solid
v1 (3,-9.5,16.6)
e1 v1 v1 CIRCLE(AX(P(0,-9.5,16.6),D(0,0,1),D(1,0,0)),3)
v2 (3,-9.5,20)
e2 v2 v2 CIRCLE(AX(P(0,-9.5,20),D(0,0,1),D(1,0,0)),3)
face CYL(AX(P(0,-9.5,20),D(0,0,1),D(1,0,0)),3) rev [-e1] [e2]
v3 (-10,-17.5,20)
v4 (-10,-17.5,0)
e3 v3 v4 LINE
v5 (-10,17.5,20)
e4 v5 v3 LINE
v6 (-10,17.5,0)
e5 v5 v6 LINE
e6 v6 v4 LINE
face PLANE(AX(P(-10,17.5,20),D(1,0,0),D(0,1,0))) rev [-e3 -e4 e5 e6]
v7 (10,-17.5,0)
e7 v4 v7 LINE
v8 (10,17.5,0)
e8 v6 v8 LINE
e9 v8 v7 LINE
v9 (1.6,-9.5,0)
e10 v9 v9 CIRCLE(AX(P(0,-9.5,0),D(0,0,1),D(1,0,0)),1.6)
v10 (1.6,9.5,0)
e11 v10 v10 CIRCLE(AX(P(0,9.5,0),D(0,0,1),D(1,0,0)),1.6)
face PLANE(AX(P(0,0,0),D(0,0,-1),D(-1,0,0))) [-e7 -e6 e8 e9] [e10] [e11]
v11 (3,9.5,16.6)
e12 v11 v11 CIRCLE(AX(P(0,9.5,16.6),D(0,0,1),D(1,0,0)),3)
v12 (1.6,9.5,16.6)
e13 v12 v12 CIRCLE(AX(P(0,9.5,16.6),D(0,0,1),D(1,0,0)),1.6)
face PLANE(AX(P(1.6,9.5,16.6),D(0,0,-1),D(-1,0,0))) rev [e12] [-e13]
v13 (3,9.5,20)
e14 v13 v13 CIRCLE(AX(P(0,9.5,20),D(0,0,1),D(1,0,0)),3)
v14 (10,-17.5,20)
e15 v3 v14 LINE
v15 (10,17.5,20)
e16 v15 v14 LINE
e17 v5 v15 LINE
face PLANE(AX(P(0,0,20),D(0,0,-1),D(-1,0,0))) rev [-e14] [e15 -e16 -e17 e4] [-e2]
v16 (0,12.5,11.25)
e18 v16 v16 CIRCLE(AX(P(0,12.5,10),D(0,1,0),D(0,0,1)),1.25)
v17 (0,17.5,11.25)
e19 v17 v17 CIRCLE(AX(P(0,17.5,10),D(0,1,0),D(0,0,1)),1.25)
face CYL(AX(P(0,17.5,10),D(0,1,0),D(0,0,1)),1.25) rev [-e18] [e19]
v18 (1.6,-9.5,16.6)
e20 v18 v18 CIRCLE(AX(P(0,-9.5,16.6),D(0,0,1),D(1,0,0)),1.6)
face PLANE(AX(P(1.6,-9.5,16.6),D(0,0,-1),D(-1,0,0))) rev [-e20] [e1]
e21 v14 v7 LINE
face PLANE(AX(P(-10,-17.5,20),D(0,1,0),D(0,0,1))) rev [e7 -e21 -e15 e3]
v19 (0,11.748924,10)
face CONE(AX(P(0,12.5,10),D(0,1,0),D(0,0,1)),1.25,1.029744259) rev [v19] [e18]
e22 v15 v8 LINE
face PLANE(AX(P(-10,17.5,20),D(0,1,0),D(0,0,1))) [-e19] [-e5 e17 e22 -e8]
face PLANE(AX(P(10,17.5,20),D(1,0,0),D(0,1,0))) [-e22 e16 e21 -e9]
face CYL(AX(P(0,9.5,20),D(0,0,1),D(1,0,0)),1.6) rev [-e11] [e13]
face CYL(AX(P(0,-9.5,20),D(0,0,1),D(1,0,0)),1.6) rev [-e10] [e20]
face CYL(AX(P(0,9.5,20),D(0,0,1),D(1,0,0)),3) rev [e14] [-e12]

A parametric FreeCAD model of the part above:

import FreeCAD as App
import Part
import Sketcher

V = App.Vector
Q = App.Units.Quantity


def add_polygon(sketch, points):
    """Adds a closed chain of lines whose ends are joined by coincident constraints."""
    first, n = sketch.GeometryCount, len(points)
    for a, b in zip(points, points[1:] + points[:1]):
        sketch.addGeometry(Part.LineSegment(App.Vector(*a, 0), App.Vector(*b, 0)), False)
    for i in range(n):
        sketch.addConstraint(Sketcher.Constraint("Coincident", first + i, 2, first + (i + 1) % n, 1))

doc = App.newDocument("Part")
params = doc.addObject("Spreadsheet::Sheet", "Params")
for row, (alias, value) in enumerate([
    ("sketch1_width", "20 mm"),
    ("sketch1_height", "35 mm"),
    ("pad1_length", "20 mm"),
    ("sketch2_diameter", "3.2 mm"),
    ("hole_diameter", "3.2 mm"),
    ("hole_cbore_diameter", "6 mm"),
    ("hole_cbore_depth", "3.4 mm"),
    ("sketch3_diameter", "2.5 mm"),
    ("hole2_diameter", "2.5 mm"),
    ("hole2_depth", "5 mm"),
], start=1):
    params.set(f"A{row}", alias)
    params.set(f"B{row}", "=" + value)
    params.setAlias(f"B{row}", alias)

body = doc.addObject("PartDesign::Body", "Body")

sketch1 = body.newObject("Sketcher::SketchObject", "Sketch")
sketch1.AttachmentSupport = (doc.getObject("XY_Plane"), [""])
sketch1.MapMode = "FlatFace"
add_polygon(sketch1, [(-10, 17.5), (-10, -17.5), (10, -17.5), (10, 17.5)])
sketch1.addConstraint(Sketcher.Constraint("Vertical", 0))
sketch1.addConstraint(Sketcher.Constraint("Horizontal", 1))
sketch1.addConstraint(Sketcher.Constraint("Vertical", 2))
sketch1.addConstraint(Sketcher.Constraint("Horizontal", 3))
sketch1.addConstraint(Sketcher.Constraint("Symmetric", 0, 2, 2, 2, -1, 1))
sketch1.addConstraint(Sketcher.Constraint("DistanceX", 1, 1, 1, 2, Q("20 mm")))
sketch1.addConstraint(Sketcher.Constraint("DistanceY", 0, 2, 0, 1, Q("35 mm")))
sketch1.setExpression("Constraints[9]", "Params.sketch1_width")
sketch1.setExpression("Constraints[10]", "Params.sketch1_height")
pad1 = body.newObject("PartDesign::Pad", "Pad")
pad1.Profile = sketch1
pad1.setExpression("Length", "Params.pad1_length")

sketch2 = body.newObject("Sketcher::SketchObject", "Sketch001")
sketch2.AttachmentSupport = (doc.getObject("XY_Plane"), [""])
sketch2.MapMode = "FlatFace"
sketch2.AttachmentOffset = App.Placement(V(0, 0, 20), App.Rotation())
sketch2.addGeometry(Part.Circle(V(0, 9.5, 0), V(0, 0, 1), 1.6), False)
sketch2.addGeometry(Part.Circle(V(0, -9.5, 0), V(0, 0, 1), 1.6), False)
sketch2.addConstraint(Sketcher.Constraint("Equal", 0, 1))
sketch2.addConstraint(Sketcher.Constraint("Symmetric", 0, 3, 1, 3, -1, 1))
sketch2.addConstraint(Sketcher.Constraint("PointOnObject", 0, 3, -2))
sketch2.addConstraint(Sketcher.Constraint("Diameter", 0, Q("3.2 mm")))
sketch2.addConstraint(Sketcher.Constraint("DistanceY", 1, 3, 0, 3, Q("19 mm")))
sketch2.setExpression("Constraints[3]", "Params.sketch2_diameter")
doc.recompute()
hole = body.newObject("PartDesign::Hole", "Hole")
hole.Profile = sketch2
hole.ThreadType = "None"
hole.setExpression("Diameter", "Params.hole_diameter")
hole.DepthType = "ThroughAll"
hole.HoleCutType = "Counterbore"
hole.setExpression("HoleCutDiameter", "Params.hole_cbore_diameter")
hole.setExpression("HoleCutDepth", "Params.hole_cbore_depth")

sketch3 = body.newObject("Sketcher::SketchObject", "Sketch002")
sketch3.AttachmentSupport = (doc.getObject("XZ_Plane"), [""])
sketch3.MapMode = "FlatFace"
sketch3.AttachmentOffset = App.Placement(V(0, 0, -17.5), App.Rotation())
sketch3.addGeometry(Part.Circle(V(0, 10, 0), V(0, 0, 1), 1.25), False)
sketch3.addConstraint(Sketcher.Constraint("PointOnObject", 0, 3, -2))
sketch3.addConstraint(Sketcher.Constraint("Diameter", 0, Q("2.5 mm")))
sketch3.addConstraint(Sketcher.Constraint("DistanceY", -1, 1, 0, 3, Q("10 mm")))
sketch3.setExpression("Constraints[1]", "Params.sketch3_diameter")
doc.recompute()
hole2 = body.newObject("PartDesign::Hole", "Hole001")
hole2.Profile = sketch3
hole2.ThreadType = "None"
hole2.setExpression("Diameter", "Params.hole2_diameter")
hole2.DepthType = "Dimension"
hole2.setExpression("Depth", "Params.hole2_depth")
hole2.DrillPoint = "Angled"
hole2.DrillPointAngle = 118
hole2.Reversed = True

doc.recompute()
